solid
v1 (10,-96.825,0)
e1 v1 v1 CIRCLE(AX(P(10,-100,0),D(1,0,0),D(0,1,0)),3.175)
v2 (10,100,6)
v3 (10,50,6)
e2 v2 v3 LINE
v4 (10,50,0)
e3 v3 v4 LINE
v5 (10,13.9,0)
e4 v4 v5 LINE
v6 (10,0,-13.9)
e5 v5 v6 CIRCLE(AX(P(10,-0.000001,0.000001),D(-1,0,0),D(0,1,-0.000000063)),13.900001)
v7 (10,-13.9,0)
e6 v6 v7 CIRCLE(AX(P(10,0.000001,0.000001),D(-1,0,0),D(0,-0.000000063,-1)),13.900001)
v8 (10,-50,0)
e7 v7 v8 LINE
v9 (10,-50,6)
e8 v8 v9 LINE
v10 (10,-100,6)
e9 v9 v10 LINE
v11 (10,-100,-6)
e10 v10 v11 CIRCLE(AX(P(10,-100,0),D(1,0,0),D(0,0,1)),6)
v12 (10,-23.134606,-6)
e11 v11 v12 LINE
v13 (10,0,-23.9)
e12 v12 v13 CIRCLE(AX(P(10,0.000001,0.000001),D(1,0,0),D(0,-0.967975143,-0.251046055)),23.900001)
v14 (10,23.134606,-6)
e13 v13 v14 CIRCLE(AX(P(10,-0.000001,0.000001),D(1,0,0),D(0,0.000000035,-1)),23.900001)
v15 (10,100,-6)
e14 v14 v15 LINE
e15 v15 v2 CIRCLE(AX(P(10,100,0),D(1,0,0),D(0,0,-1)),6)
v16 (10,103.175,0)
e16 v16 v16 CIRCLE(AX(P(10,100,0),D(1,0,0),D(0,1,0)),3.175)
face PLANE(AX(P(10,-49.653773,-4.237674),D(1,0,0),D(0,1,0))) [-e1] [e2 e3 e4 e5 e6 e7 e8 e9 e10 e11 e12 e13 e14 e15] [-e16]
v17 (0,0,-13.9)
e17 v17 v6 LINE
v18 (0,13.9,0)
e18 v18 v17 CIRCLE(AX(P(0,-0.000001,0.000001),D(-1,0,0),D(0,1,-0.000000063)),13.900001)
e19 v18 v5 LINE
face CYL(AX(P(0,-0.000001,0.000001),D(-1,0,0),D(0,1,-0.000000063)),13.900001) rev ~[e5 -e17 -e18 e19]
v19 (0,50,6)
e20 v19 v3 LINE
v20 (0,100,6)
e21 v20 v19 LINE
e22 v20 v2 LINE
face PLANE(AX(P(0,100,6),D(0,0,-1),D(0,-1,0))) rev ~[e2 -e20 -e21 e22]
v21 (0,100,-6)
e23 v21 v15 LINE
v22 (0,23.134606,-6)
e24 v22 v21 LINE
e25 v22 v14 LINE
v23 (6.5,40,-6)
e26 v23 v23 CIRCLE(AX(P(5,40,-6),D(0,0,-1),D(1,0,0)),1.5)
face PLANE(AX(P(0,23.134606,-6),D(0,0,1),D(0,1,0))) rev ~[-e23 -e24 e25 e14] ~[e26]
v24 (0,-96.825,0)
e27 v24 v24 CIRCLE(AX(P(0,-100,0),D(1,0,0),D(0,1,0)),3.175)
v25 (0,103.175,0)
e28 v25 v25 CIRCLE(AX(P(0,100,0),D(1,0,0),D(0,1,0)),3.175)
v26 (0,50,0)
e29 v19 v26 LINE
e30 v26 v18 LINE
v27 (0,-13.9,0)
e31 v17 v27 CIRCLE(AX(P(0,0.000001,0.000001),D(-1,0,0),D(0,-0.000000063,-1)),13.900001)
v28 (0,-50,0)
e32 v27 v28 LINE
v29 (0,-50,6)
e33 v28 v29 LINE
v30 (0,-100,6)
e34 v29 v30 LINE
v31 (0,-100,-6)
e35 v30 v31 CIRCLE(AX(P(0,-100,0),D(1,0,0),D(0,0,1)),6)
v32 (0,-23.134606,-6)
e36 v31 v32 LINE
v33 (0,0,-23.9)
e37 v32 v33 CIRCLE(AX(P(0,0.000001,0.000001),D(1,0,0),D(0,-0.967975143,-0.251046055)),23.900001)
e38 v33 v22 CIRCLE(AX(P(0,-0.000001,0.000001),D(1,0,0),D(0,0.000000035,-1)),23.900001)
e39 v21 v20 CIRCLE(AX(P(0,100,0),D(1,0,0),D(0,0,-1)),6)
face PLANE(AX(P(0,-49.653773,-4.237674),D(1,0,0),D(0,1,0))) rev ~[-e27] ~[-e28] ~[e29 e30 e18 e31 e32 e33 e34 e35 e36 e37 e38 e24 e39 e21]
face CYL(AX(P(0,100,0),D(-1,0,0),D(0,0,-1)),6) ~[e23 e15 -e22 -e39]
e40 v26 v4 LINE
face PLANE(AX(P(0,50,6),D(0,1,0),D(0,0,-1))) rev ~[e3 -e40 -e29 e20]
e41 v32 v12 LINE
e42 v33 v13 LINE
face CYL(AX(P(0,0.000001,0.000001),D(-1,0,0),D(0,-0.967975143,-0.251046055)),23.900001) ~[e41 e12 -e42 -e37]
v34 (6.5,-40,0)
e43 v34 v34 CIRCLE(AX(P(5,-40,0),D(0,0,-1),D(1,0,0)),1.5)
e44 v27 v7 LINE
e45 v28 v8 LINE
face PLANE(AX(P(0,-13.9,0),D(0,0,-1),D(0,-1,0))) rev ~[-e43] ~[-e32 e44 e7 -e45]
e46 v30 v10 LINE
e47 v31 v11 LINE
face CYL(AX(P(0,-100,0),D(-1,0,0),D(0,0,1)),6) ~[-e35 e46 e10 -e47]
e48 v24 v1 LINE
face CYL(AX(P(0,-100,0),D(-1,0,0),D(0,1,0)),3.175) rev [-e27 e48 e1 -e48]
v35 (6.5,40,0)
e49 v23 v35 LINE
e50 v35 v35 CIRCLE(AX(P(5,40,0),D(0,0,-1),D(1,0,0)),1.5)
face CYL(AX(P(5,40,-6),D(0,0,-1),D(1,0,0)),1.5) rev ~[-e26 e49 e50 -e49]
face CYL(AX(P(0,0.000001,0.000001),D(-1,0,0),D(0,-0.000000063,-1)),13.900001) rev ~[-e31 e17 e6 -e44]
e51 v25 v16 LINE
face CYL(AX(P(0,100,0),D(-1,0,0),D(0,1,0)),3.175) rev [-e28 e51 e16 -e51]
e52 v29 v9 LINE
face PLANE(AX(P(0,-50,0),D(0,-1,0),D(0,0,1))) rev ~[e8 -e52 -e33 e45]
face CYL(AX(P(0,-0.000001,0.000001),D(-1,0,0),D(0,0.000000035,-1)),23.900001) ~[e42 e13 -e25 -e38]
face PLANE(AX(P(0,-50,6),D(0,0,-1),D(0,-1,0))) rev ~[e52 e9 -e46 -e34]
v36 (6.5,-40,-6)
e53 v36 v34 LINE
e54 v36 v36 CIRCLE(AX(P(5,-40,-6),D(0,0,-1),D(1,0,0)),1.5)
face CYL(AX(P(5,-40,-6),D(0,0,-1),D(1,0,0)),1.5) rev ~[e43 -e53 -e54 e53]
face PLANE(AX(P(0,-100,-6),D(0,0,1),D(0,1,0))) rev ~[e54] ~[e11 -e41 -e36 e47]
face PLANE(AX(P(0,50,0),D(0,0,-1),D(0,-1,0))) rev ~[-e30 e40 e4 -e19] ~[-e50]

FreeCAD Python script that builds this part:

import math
import FreeCAD as App
import Part
import Sketcher
Q = App.Units.Quantity

doc = App.newDocument("Part")
body = doc.addObject("PartDesign::Body", "Body")

sketch1 = body.newObject("Sketcher::SketchObject", "Sketch")
sketch1.AttachmentSupport = (doc.getObject("YZ_Plane"), [""])
sketch1.MapMode = "FlatFace"
sketch1.addGeometry(Part.ArcOfCircle(Part.Circle(App.Vector(0.000001, 0.000001, 0), App.Vector(0, 0, 1), 23.900001), math.radians(-165.460579), math.radians(-90.000002)), False)
sketch1.addGeometry(Part.ArcOfCircle(Part.Circle(App.Vector(-0.000001, 0.000001, 0), App.Vector(0, 0, 1), 23.900001), math.radians(-89.999998), math.radians(-14.539421)), False)
sketch1.addGeometry(Part.LineSegment(App.Vector(23.134606, -6, 0), App.Vector(100, -6, 0)), False)
sketch1.addGeometry(Part.ArcOfCircle(Part.Circle(App.Vector(100, 0, 0), App.Vector(0, 0, 1), 6), math.radians(-90), math.radians(90)), False)
sketch1.addGeometry(Part.LineSegment(App.Vector(100, 6, 0), App.Vector(50, 6, 0)), False)
sketch1.addGeometry(Part.LineSegment(App.Vector(50, 6, 0), App.Vector(50, 0, 0)), False)
sketch1.addGeometry(Part.LineSegment(App.Vector(50, 0, 0), App.Vector(13.9, 0, 0)), False)
sketch1.addGeometry(Part.ArcOfCircle(Part.Circle(App.Vector(-0.000001, 0.000001, 0), App.Vector(0, 0, 1), 13.900001), math.radians(-89.999996), math.radians(-0.000004)), False)
sketch1.addGeometry(Part.ArcOfCircle(Part.Circle(App.Vector(0.000001, 0.000001, 0), App.Vector(0, 0, 1), 13.900001), math.radians(-179.999996), math.radians(-90.000004)), False)
sketch1.addGeometry(Part.LineSegment(App.Vector(-13.9, 0, 0), App.Vector(-50, 0, 0)), False)
sketch1.addGeometry(Part.LineSegment(App.Vector(-50, 0, 0), App.Vector(-50, 6, 0)), False)
sketch1.addGeometry(Part.LineSegment(App.Vector(-50, 6, 0), App.Vector(-100, 6, 0)), False)
sketch1.addGeometry(Part.ArcOfCircle(Part.Circle(App.Vector(-100, 0, 0), App.Vector(0, 0, 1), 6), math.radians(90), math.radians(270)), False)
sketch1.addGeometry(Part.LineSegment(App.Vector(-100, -6, 0), App.Vector(-23.134606, -6, 0)), False)
sketch1.addGeometry(Part.Circle(App.Vector(-100, 0, 0), App.Vector(0, 0, 1), 3.175), False)
sketch1.addGeometry(Part.Circle(App.Vector(100, 0, 0), App.Vector(0, 0, 1), 3.175), False)
sketch1.addConstraint(Sketcher.Constraint("Tangent", 0, 2, 1, 1))
sketch1.addConstraint(Sketcher.Constraint("Coincident", 1, 2, 2, 1))
sketch1.addConstraint(Sketcher.Constraint("Tangent", 2, 2, 3, 1))
sketch1.addConstraint(Sketcher.Constraint("Tangent", 3, 2, 4, 1))
sketch1.addConstraint(Sketcher.Constraint("Coincident", 4, 2, 5, 1))
sketch1.addConstraint(Sketcher.Constraint("Coincident", 5, 2, 6, 1))
sketch1.addConstraint(Sketcher.Constraint("Coincident", 6, 2, 7, 2))
sketch1.addConstraint(Sketcher.Constraint("Tangent", 7, 1, 8, 2))
sketch1.addConstraint(Sketcher.Constraint("Coincident", 8, 1, 9, 1))
sketch1.addConstraint(Sketcher.Constraint("Coincident", 9, 2, 10, 1))
sketch1.addConstraint(Sketcher.Constraint("Coincident", 10, 2, 11, 1))
sketch1.addConstraint(Sketcher.Constraint("Tangent", 11, 2, 12, 1))
sketch1.addConstraint(Sketcher.Constraint("Tangent", 12, 2, 13, 1))
sketch1.addConstraint(Sketcher.Constraint("Coincident", 13, 2, 0, 1))
sketch1.addConstraint(Sketcher.Constraint("Horizontal", 2))
sketch1.addConstraint(Sketcher.Constraint("Horizontal", 4))
sketch1.addConstraint(Sketcher.Constraint("Vertical", 5))
sketch1.addConstraint(Sketcher.Constraint("Horizontal", 6))
sketch1.addConstraint(Sketcher.Constraint("Horizontal", 9))
sketch1.addConstraint(Sketcher.Constraint("Vertical", 10))
sketch1.addConstraint(Sketcher.Constraint("Horizontal", 11))
sketch1.addConstraint(Sketcher.Constraint("Horizontal", 13))
sketch1.addConstraint(Sketcher.Constraint("Coincident", 0, 3, -1, 1))
sketch1.addConstraint(Sketcher.Constraint("Coincident", 7, 3, -1, 1))
sketch1.addConstraint(Sketcher.Constraint("Coincident", 14, 3, 12, 3))
sketch1.addConstraint(Sketcher.Constraint("Coincident", 15, 3, 3, 3))
sketch1.addConstraint(Sketcher.Constraint("Equal", 0, 1))
sketch1.addConstraint(Sketcher.Constraint("Equal", 7, 8))
sketch1.addConstraint(Sketcher.Constraint("Equal", 3, 12))
sketch1.addConstraint(Sketcher.Constraint("Equal", 14, 15))
sketch1.addConstraint(Sketcher.Constraint("Symmetric", 3, 3, 12, 3, -1, 1))
sketch1.addConstraint(Sketcher.Constraint("Symmetric", 5, 2, 9, 2, -1, 1))
sketch1.addConstraint(Sketcher.Constraint("PointOnObject", 3, 3, -1))
sketch1.addConstraint(Sketcher.Constraint("PointOnObject", 0, 2, -2))
sketch1.addConstraint(Sketcher.Constraint("PointOnObject", 5, 2, -1))
sketch1.addConstraint(Sketcher.Constraint("PointOnObject", 7, 1, -2))
sketch1.addConstraint(Sketcher.Constraint("Radius", 3, Q("6 mm")))
sketch1.addConstraint(Sketcher.Constraint("Radius", 0, Q("23.900001 mm")))
sketch1.addConstraint(Sketcher.Constraint("Radius", 7, Q("13.900001 mm")))
sketch1.addConstraint(Sketcher.Constraint("Diameter", 14, Q("6.35 mm")))
sketch1.addConstraint(Sketcher.Constraint("DistanceX", 4, 2, 4, 1, Q("50 mm")))
sketch1.addConstraint(Sketcher.Constraint("DistanceX", 6, 2, 6, 1, Q("36.1 mm")))
pad1 = body.newObject("PartDesign::Pad", "Pad")
pad1.Profile = sketch1
pad1.Length = 10

sketch2 = body.newObject("Sketcher::SketchObject", "Sketch001")
sketch2.AttachmentSupport = (doc.getObject("XY_Plane"), [""])
sketch2.MapMode = "FlatFace"
sketch2.AttachmentOffset = App.Placement(App.Vector(0, 0, -6), App.Rotation())
sketch2.addGeometry(Part.Circle(App.Vector(5, -40, 0), App.Vector(0, 0, 1), 1.5), False)
sketch2.addGeometry(Part.Circle(App.Vector(5, 40, 0), App.Vector(0, 0, 1), 1.5), False)
sketch2.addConstraint(Sketcher.Constraint("Equal", 0, 1))
sketch2.addConstraint(Sketcher.Constraint("Symmetric", 0, 3, 1, 3, -1))
sketch2.addConstraint(Sketcher.Constraint("Diameter", 0, Q("3 mm")))
sketch2.addConstraint(Sketcher.Constraint("DistanceX", -1, 1, 0, 3, Q("5 mm")))
sketch2.addConstraint(Sketcher.Constraint("DistanceY", 0, 3, -1, 1, Q("40 mm")))
pocket1 = body.newObject("PartDesign::Pocket", "Pocket")
pocket1.Profile = sketch2
pocket1.Length = 25
pocket1.Reversed = True

doc.recompute()
